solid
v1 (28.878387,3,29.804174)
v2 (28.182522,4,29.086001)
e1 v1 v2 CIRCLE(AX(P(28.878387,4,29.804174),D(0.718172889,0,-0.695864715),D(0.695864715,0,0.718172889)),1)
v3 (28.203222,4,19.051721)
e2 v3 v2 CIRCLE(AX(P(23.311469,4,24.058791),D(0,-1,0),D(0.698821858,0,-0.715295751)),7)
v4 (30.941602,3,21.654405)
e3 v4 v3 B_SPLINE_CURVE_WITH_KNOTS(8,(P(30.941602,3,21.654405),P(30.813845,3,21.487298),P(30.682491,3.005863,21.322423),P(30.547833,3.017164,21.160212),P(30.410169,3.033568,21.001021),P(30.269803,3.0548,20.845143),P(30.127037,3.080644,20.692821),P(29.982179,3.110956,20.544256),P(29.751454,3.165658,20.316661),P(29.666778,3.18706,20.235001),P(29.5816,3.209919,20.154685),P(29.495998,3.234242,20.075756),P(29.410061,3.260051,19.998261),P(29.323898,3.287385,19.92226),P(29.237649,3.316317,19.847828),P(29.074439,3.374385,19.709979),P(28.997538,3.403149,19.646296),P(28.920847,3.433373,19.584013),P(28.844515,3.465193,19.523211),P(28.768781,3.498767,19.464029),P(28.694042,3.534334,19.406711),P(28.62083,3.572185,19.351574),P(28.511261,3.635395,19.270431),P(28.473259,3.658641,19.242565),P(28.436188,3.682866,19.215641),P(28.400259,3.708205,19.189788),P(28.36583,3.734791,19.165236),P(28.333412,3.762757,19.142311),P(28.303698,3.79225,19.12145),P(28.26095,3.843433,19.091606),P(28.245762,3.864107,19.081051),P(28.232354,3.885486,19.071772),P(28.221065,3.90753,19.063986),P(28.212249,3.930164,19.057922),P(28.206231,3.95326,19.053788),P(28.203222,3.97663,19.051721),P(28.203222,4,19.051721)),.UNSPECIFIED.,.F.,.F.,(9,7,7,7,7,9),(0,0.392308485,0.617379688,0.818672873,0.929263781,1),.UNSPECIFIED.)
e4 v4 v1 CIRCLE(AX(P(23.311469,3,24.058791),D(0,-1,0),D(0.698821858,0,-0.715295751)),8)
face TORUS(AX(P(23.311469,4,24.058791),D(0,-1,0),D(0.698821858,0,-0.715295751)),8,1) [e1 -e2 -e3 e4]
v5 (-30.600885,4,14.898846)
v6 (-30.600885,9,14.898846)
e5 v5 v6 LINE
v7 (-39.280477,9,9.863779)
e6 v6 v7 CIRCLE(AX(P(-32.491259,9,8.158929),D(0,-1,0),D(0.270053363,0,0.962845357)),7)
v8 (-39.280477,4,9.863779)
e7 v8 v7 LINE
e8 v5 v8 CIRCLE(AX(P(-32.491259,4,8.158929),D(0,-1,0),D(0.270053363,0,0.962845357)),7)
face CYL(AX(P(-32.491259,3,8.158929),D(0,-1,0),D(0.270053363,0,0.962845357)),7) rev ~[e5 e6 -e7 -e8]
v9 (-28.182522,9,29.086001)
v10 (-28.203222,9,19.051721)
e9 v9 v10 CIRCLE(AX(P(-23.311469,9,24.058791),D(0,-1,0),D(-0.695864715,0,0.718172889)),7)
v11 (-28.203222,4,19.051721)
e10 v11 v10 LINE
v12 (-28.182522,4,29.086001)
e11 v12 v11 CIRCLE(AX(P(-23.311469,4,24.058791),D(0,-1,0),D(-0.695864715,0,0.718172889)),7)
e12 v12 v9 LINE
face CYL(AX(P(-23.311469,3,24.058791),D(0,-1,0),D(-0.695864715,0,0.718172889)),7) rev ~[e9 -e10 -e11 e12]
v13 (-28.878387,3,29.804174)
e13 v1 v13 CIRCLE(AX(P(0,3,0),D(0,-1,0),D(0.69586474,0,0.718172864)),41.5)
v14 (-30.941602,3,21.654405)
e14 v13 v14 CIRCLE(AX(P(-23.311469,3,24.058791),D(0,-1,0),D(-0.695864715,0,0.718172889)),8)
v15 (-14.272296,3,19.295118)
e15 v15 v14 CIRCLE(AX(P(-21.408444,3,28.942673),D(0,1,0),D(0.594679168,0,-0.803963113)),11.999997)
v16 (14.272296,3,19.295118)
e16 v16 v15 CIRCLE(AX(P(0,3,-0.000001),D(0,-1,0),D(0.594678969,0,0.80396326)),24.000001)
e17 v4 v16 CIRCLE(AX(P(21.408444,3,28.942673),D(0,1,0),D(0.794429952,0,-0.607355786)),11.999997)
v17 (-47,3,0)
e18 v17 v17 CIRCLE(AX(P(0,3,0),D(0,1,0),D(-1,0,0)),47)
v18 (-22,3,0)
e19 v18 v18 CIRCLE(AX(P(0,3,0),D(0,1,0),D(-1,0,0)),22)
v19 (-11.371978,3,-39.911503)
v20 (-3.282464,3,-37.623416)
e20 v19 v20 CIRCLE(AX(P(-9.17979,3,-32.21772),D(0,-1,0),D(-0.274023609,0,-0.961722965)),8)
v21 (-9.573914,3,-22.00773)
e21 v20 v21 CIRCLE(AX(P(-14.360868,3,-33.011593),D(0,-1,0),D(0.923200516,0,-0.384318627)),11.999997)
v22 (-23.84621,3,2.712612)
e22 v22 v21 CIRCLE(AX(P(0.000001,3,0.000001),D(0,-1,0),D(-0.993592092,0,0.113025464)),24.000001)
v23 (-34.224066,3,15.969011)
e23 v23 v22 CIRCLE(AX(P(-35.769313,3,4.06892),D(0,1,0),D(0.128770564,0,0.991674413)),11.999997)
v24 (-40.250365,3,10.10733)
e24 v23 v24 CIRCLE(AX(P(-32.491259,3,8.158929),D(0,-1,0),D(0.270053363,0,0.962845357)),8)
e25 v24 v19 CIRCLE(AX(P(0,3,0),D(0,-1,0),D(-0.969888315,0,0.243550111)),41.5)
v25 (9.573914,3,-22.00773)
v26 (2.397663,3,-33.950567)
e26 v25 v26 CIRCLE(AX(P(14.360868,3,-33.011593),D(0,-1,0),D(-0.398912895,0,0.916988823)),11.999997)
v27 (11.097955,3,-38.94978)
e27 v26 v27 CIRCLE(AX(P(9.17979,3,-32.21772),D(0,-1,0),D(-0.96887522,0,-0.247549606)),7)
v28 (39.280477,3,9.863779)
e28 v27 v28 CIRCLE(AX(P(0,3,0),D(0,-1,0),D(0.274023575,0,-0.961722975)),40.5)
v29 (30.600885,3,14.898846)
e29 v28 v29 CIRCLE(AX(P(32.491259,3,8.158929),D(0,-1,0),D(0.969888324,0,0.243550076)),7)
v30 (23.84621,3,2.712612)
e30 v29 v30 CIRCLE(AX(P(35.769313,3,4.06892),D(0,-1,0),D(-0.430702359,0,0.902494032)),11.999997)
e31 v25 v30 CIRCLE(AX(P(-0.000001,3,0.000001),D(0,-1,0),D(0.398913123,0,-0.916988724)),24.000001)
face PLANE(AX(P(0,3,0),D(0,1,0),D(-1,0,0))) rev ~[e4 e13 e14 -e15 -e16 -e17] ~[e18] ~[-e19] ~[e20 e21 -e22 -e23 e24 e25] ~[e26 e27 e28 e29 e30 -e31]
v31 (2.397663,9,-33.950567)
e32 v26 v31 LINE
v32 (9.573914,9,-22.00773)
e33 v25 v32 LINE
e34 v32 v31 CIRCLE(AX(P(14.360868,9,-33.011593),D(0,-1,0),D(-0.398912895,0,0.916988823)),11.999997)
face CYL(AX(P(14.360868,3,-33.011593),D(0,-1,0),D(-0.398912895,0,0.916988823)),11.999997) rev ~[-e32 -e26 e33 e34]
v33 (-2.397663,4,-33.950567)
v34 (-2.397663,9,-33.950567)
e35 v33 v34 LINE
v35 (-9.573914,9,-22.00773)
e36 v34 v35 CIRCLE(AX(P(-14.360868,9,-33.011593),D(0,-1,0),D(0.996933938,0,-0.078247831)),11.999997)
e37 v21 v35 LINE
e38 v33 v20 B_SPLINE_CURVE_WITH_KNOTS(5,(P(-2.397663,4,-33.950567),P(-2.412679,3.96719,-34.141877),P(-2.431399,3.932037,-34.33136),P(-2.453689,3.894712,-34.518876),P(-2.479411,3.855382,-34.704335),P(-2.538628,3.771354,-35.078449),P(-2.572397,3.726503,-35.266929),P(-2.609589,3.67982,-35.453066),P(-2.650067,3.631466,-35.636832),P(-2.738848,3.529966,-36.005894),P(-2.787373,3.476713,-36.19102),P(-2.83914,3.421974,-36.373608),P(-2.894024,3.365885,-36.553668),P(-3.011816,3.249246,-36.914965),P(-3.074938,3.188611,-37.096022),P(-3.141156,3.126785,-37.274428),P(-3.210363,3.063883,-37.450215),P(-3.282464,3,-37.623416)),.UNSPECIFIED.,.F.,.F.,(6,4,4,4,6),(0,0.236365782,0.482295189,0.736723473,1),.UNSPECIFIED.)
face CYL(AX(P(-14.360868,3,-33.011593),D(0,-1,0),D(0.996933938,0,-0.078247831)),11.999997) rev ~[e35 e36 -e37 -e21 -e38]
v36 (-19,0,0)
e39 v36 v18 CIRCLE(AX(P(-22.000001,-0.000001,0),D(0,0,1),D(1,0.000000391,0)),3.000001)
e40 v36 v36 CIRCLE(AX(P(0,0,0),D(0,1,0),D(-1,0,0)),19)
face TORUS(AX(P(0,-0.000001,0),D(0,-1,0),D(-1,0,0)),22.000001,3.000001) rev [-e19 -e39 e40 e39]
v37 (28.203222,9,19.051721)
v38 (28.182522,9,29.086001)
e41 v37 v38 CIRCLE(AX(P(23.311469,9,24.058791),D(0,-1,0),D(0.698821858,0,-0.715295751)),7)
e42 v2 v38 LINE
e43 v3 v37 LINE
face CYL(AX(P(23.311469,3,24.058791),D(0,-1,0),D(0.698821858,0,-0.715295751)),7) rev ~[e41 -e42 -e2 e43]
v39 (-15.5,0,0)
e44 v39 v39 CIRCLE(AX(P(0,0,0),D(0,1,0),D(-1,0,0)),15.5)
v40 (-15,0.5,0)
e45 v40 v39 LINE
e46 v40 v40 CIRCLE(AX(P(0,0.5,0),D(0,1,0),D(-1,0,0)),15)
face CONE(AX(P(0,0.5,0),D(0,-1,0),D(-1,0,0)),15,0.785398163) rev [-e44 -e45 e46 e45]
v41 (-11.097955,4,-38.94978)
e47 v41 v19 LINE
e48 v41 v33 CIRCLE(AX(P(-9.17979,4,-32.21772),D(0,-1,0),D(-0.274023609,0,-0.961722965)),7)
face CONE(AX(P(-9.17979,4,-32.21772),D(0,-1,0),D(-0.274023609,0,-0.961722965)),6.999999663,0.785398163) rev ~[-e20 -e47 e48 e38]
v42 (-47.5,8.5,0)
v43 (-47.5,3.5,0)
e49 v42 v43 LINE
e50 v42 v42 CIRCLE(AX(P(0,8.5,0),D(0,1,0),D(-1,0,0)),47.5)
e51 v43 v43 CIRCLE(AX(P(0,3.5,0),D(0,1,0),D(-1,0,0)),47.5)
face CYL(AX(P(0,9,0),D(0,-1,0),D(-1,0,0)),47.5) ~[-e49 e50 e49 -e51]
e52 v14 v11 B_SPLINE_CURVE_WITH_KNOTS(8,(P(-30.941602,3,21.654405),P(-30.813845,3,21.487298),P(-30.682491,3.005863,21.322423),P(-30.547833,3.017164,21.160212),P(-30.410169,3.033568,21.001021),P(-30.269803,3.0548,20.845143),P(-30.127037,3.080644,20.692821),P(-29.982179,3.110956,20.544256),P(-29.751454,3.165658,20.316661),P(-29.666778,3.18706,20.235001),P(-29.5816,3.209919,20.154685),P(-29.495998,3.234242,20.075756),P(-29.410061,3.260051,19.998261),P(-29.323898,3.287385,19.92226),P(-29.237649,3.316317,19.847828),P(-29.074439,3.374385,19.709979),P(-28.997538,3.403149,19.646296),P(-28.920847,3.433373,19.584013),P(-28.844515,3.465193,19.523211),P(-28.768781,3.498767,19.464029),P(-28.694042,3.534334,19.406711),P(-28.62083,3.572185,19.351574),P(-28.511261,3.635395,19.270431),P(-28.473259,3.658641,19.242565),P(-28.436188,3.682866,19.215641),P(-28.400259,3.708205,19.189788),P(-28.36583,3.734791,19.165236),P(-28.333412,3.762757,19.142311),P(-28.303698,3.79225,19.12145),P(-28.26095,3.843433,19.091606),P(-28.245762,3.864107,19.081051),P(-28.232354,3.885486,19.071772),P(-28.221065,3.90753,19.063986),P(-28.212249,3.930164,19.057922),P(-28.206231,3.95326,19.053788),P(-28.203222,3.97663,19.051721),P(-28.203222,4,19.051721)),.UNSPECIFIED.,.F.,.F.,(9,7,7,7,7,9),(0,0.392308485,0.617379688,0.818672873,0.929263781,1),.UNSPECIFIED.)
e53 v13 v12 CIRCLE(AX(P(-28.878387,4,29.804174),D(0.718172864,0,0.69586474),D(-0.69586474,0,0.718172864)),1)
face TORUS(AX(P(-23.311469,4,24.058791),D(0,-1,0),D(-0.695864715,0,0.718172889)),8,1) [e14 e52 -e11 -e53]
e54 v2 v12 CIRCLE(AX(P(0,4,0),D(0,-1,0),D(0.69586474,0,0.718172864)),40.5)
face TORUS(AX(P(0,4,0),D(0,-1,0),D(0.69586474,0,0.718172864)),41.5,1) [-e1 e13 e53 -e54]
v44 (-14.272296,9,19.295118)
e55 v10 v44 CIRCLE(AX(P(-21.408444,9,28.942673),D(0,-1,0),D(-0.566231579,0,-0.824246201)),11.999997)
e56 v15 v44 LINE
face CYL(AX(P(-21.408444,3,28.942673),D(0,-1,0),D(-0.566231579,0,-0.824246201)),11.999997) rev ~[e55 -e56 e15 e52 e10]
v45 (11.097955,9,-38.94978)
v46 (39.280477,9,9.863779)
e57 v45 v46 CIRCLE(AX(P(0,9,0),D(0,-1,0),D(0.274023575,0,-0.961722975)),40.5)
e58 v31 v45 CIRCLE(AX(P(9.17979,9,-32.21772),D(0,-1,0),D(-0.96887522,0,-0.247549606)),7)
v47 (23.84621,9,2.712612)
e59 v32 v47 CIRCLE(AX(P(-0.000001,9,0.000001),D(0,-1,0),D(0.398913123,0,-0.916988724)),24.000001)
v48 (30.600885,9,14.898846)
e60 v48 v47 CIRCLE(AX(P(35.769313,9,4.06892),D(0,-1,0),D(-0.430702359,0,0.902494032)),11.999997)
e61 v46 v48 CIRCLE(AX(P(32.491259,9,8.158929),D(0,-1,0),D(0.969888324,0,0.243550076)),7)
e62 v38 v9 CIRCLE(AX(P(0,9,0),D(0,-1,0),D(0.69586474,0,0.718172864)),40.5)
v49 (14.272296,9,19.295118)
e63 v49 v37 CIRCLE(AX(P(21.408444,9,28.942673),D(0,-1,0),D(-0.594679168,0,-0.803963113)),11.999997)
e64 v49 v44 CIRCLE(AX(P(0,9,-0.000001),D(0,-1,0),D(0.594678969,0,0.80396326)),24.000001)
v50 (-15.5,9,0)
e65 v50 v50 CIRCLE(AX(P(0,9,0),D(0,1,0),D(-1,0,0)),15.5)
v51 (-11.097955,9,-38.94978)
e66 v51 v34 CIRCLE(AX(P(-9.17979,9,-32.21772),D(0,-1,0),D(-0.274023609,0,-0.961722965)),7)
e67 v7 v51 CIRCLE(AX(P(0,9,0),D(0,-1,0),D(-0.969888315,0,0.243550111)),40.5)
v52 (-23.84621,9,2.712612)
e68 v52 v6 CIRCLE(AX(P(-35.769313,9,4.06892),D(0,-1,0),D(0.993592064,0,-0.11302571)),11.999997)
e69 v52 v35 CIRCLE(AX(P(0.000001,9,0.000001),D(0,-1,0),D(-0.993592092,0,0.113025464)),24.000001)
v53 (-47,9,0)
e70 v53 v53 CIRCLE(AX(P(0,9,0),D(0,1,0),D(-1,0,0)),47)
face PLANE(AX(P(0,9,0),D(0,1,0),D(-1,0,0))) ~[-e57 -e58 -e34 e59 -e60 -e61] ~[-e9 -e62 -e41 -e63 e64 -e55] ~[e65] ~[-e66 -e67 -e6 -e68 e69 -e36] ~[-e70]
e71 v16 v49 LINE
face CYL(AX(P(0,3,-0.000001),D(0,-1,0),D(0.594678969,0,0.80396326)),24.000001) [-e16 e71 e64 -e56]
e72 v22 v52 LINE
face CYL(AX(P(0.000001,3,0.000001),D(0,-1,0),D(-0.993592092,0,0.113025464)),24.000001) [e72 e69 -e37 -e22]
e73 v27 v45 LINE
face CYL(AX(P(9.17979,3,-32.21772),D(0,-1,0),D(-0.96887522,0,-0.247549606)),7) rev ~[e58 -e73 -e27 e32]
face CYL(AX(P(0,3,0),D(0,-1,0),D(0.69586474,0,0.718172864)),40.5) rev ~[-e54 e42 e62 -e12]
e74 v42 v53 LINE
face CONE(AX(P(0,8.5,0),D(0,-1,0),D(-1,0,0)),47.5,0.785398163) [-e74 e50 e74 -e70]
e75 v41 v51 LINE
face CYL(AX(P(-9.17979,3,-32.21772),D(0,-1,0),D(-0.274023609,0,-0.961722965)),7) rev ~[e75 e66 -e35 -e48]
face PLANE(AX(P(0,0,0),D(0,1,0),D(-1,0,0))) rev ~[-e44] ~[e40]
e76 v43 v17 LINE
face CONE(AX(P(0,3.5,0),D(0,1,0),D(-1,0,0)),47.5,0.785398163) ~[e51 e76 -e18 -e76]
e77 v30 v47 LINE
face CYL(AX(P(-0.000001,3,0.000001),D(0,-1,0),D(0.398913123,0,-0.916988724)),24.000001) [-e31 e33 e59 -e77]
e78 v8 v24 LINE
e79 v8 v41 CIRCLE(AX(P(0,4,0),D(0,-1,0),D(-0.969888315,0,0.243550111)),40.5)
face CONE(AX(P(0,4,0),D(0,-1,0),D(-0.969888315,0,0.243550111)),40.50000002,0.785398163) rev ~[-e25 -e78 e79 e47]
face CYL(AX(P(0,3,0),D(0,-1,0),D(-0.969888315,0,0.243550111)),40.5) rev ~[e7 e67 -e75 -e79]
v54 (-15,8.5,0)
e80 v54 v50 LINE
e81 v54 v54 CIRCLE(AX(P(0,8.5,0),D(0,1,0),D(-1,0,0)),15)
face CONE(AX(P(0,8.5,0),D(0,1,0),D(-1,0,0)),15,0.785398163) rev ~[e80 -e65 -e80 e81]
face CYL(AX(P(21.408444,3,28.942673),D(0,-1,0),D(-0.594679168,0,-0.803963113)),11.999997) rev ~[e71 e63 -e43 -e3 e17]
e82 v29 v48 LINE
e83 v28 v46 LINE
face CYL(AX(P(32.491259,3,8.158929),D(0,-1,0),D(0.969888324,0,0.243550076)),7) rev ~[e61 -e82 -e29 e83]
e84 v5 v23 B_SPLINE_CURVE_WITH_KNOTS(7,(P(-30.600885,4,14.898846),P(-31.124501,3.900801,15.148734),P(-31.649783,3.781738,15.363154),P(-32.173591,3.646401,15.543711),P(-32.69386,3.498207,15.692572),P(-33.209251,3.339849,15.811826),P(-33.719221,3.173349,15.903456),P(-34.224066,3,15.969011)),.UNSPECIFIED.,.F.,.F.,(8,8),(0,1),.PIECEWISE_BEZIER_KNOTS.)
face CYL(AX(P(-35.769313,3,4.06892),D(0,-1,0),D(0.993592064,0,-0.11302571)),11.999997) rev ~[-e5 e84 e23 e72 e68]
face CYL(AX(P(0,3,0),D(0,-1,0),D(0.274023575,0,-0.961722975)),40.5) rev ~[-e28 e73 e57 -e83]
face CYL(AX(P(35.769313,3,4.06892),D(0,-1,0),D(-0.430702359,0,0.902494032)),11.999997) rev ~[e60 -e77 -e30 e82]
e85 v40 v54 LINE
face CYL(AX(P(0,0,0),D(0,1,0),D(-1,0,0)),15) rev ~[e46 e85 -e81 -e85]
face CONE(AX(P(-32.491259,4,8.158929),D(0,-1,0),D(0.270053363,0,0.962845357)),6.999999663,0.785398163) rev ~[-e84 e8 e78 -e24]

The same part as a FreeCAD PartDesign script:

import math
import FreeCAD as App
import Part
import Sketcher

V = App.Vector
Q = App.Units.Quantity


def edges_at(feature, points):
    """Names of the edges that pass closest to the given points."""
    edges = feature.Shape.Edges
    near = lambda p: min(range(len(edges)), key=lambda i: edges[i].distToShape(Part.Vertex(*p))[0])
    return sorted({f"Edge{near(p) + 1}" for p in points})

doc = App.newDocument("Part")
params = doc.addObject("Spreadsheet::Sheet", "Params")
for row, (alias, value) in enumerate([
    ("sketch1_radius", "3.000001 mm"),
    ("sketch1_width", "4 mm"),
    ("sketch1_height", "6 mm"),
    ("sketch1_width2", "32.5 mm"),
    ("revolution_angle", "360 deg"),
    ("chamfer_size", "0.5 mm"),
    ("chamfer2_size", "0.5 mm"),
    ("chamfer3_size", "0.5 mm"),
    ("chamfer4_size", "0.5 mm"),
    ("sketch2_radius", "7 mm"),
    ("sketch2_radius2", "24.000001 mm"),
    ("sketch2_radius3", "40.5 mm"),
    ("chamfer5_size", "1 mm"),
    ("fillet_radius", "1 mm"),
], start=1):
    params.set(f"A{row}", alias)
    params.set(f"B{row}", "=" + value)
    params.setAlias(f"B{row}", alias)

body = doc.addObject("PartDesign::Body", "Body")

# Sketch on XY plane
sketch1 = doc.addObject("Sketcher::SketchObject", "Sketch")
body.addObject(sketch1)
sketch1.AttachmentSupport = (doc.XY_Plane, [""])
sketch1.MapMode = "FlatFace"
sketch1.addGeometry([
    Part.LineSegment(V(-15, 9, 0), V(-47.5, 9, 0)),  # 0
    Part.LineSegment(V(-47.5, 9, 0), V(-47.5, 3, 0)),  # 1
    Part.LineSegment(V(-47.5, 3, 0), V(-22, 3, 0)),  # 2
    Part.ArcOfCircle(Part.Circle(V(-22.000001, -0.000001, 0), V(0, 0, 1), 3.000001), math.radians(0.000022), math.radians(89.999978)),  # 3
    Part.LineSegment(V(-19, 0, 0), V(-15, 0, 0)),  # 4
    Part.LineSegment(V(-15, 0, 0), V(-15, 9, 0)),  # 5
], False)
sketch1.addConstraint([
    Sketcher.Constraint("Coincident", 0, 2, 1, 1),
    Sketcher.Constraint("Coincident", 1, 2, 2, 1),
    Sketcher.Constraint("Tangent", 2, 2, 3, 2),
    Sketcher.Constraint("Coincident", 3, 1, 4, 1),
    Sketcher.Constraint("Coincident", 4, 2, 5, 1),
    Sketcher.Constraint("Coincident", 5, 2, 0, 1),
    Sketcher.Constraint("Horizontal", 0),
    Sketcher.Constraint("Vertical", 1),
    Sketcher.Constraint("Horizontal", 2),
    Sketcher.Constraint("Horizontal", 4),
    Sketcher.Constraint("Vertical", 5),
    Sketcher.Constraint("PointOnObject", 3, 3, -1),
    Sketcher.Constraint("PointOnObject", 3, 1, -1),
    Sketcher.Constraint("Radius", 3, Q("3.000001 mm")),
    Sketcher.Constraint("DistanceX", 4, 1, 4, 2, Q("4 mm")),
    Sketcher.Constraint("DistanceY", 1, 2, 1, 1, Q("6 mm")),
    Sketcher.Constraint("DistanceX", 0, 2, 0, 1, Q("32.5 mm")),
    Sketcher.Constraint("DistanceX", 3, 3, -1, 1, Q("22.000001 mm")),
])
sketch1.setExpression("Constraints[13]", "Params.sketch1_radius")
sketch1.setExpression("Constraints[14]", "Params.sketch1_width")
sketch1.setExpression("Constraints[15]", "Params.sketch1_height")
sketch1.setExpression("Constraints[16]", "Params.sketch1_width2")
revolution = doc.addObject("PartDesign::Revolution", "Revolution")
body.addObject(revolution)
revolution.Profile = sketch1
revolution.ReferenceAxis = (sketch1, ["V_Axis"])
revolution.setExpression("Angle", "Params.revolution_angle")
doc.recompute()

chamfer = doc.addObject("PartDesign::Chamfer", "Chamfer")
body.addObject(chamfer)
chamfer.Base = (revolution, edges_at(revolution, [(47.5, 3, 0)]))
chamfer.setExpression("Size", "Params.chamfer_size")
doc.recompute()

chamfer2 = doc.addObject("PartDesign::Chamfer", "Chamfer001")
body.addObject(chamfer2)
chamfer2.Base = (chamfer, edges_at(chamfer, [(47.5, 9, 0)]))
chamfer2.setExpression("Size", "Params.chamfer2_size")
doc.recompute()

chamfer3 = doc.addObject("PartDesign::Chamfer", "Chamfer002")
body.addObject(chamfer3)
chamfer3.Base = (chamfer2, edges_at(chamfer2, [(15, 0, 0)]))
chamfer3.setExpression("Size", "Params.chamfer3_size")
doc.recompute()

chamfer4 = doc.addObject("PartDesign::Chamfer", "Chamfer003")
body.addObject(chamfer4)
chamfer4.Base = (chamfer3, edges_at(chamfer3, [(15, 9, 0)]))
chamfer4.setExpression("Size", "Params.chamfer4_size")

# Sketch on XZ plane
sketch2 = doc.addObject("Sketcher::SketchObject", "Sketch001")
body.addObject(sketch2)
sketch2.AttachmentSupport = (doc.XZ_Plane, [""])
sketch2.MapMode = "FlatFace"
sketch2.AttachmentOffset = App.Placement(V(0, 0, -3), App.Rotation())
sketch2.addGeometry([
    Part.ArcOfCircle(Part.Circle(V(0, 0, 0), V(0, 0, 1), 40.5), math.radians(45.903834), math.radians(134.096166)),  # 0
    Part.ArcOfCircle(Part.Circle(V(-23.311469, 24.058791, 0), V(0, 0, 1), 7), math.radians(134.096164), math.radians(225.667442)),  # 1
    Part.ArcOfCircle(Part.Circle(V(-21.408445, 28.942673, 0), V(0, 0, 1), 11.999997), math.radians(-124.487858), math.radians(-53.510236)),  # 2
    Part.ArcOfCircle(Part.Circle(V(0, -0.000001, 0), V(0, 0, 1), 24.000001), math.radians(53.51025), math.radians(126.48975)),  # 3
    Part.ArcOfCircle(Part.Circle(V(21.408445, 28.942673, 0), V(0, 0, 1), 11.999997), math.radians(-126.489764), math.radians(-55.512142)),  # 4
    Part.ArcOfCircle(Part.Circle(V(23.311469, 24.058791, 0), V(0, 0, 1), 7), math.radians(-45.667442), math.radians(45.903836)),  # 5
], False)
sketch2.addConstraint([
    Sketcher.Constraint("Tangent", 0, 2, 1, 1),
    Sketcher.Constraint("Coincident", 1, 2, 2, 1),
    Sketcher.Constraint("Tangent", 2, 2, 3, 2),
    Sketcher.Constraint("Tangent", 3, 1, 4, 1),
    Sketcher.Constraint("Coincident", 4, 2, 5, 1),
    Sketcher.Constraint("Tangent", 5, 2, 0, 1),
    Sketcher.Constraint("Coincident", 0, 3, -1, 1),
    Sketcher.Constraint("Coincident", 3, 3, -1, 1),
    Sketcher.Constraint("Equal", 2, 4),
    Sketcher.Constraint("Equal", 1, 5),
    Sketcher.Constraint("Symmetric", 1, 2, 4, 2, -2),
    Sketcher.Constraint("Radius", 1, Q("7 mm")),
    Sketcher.Constraint("Radius", 3, Q("24.000001 mm")),
    Sketcher.Constraint("Radius", 0, Q("40.5 mm")),
    Sketcher.Constraint("DistanceY", -1, 1, 0, 2, Q("29.086001 mm")),
    Sketcher.Constraint("Radius", 2, Q("11.999997 mm")),
    Sketcher.Constraint("DistanceX", 1, 2, 0, 2, Q("0.0207 mm")),
])
sketch2.setExpression("Constraints[11]", "Params.sketch2_radius")
sketch2.setExpression("Constraints[12]", "Params.sketch2_radius2")
sketch2.setExpression("Constraints[13]", "Params.sketch2_radius3")
pocket1 = doc.addObject("PartDesign::Pocket", "Pocket")
body.addObject(pocket1)
pocket1.Profile = sketch2
pocket1.Type = "ThroughAll"
doc.recompute()

polarpattern = doc.addObject("PartDesign::PolarPattern", "PolarPattern")
body.addObject(polarpattern)
polarpattern.Originals = [pocket1]
polarpattern.Axis = (doc.Y_Axis, [""])
polarpattern.Angle = 360
polarpattern.Occurrences = 3
body.Tip = polarpattern
doc.recompute()

chamfer5 = doc.addObject("PartDesign::Chamfer", "Chamfer004")
body.addObject(chamfer5)
chamfer5.Base = (polarpattern, edges_at(polarpattern, [(-35.074, 3, -20.25)]))
chamfer5.setExpression("Size", "Params.chamfer5_size")
doc.recompute()

fillet = doc.addObject("PartDesign::Fillet", "Fillet")
body.addObject(fillet)
fillet.Base = (chamfer5, edges_at(chamfer5, [(0, 3, 40.5)]))
fillet.setExpression("Radius", "Params.fillet_radius")

doc.recompute()
